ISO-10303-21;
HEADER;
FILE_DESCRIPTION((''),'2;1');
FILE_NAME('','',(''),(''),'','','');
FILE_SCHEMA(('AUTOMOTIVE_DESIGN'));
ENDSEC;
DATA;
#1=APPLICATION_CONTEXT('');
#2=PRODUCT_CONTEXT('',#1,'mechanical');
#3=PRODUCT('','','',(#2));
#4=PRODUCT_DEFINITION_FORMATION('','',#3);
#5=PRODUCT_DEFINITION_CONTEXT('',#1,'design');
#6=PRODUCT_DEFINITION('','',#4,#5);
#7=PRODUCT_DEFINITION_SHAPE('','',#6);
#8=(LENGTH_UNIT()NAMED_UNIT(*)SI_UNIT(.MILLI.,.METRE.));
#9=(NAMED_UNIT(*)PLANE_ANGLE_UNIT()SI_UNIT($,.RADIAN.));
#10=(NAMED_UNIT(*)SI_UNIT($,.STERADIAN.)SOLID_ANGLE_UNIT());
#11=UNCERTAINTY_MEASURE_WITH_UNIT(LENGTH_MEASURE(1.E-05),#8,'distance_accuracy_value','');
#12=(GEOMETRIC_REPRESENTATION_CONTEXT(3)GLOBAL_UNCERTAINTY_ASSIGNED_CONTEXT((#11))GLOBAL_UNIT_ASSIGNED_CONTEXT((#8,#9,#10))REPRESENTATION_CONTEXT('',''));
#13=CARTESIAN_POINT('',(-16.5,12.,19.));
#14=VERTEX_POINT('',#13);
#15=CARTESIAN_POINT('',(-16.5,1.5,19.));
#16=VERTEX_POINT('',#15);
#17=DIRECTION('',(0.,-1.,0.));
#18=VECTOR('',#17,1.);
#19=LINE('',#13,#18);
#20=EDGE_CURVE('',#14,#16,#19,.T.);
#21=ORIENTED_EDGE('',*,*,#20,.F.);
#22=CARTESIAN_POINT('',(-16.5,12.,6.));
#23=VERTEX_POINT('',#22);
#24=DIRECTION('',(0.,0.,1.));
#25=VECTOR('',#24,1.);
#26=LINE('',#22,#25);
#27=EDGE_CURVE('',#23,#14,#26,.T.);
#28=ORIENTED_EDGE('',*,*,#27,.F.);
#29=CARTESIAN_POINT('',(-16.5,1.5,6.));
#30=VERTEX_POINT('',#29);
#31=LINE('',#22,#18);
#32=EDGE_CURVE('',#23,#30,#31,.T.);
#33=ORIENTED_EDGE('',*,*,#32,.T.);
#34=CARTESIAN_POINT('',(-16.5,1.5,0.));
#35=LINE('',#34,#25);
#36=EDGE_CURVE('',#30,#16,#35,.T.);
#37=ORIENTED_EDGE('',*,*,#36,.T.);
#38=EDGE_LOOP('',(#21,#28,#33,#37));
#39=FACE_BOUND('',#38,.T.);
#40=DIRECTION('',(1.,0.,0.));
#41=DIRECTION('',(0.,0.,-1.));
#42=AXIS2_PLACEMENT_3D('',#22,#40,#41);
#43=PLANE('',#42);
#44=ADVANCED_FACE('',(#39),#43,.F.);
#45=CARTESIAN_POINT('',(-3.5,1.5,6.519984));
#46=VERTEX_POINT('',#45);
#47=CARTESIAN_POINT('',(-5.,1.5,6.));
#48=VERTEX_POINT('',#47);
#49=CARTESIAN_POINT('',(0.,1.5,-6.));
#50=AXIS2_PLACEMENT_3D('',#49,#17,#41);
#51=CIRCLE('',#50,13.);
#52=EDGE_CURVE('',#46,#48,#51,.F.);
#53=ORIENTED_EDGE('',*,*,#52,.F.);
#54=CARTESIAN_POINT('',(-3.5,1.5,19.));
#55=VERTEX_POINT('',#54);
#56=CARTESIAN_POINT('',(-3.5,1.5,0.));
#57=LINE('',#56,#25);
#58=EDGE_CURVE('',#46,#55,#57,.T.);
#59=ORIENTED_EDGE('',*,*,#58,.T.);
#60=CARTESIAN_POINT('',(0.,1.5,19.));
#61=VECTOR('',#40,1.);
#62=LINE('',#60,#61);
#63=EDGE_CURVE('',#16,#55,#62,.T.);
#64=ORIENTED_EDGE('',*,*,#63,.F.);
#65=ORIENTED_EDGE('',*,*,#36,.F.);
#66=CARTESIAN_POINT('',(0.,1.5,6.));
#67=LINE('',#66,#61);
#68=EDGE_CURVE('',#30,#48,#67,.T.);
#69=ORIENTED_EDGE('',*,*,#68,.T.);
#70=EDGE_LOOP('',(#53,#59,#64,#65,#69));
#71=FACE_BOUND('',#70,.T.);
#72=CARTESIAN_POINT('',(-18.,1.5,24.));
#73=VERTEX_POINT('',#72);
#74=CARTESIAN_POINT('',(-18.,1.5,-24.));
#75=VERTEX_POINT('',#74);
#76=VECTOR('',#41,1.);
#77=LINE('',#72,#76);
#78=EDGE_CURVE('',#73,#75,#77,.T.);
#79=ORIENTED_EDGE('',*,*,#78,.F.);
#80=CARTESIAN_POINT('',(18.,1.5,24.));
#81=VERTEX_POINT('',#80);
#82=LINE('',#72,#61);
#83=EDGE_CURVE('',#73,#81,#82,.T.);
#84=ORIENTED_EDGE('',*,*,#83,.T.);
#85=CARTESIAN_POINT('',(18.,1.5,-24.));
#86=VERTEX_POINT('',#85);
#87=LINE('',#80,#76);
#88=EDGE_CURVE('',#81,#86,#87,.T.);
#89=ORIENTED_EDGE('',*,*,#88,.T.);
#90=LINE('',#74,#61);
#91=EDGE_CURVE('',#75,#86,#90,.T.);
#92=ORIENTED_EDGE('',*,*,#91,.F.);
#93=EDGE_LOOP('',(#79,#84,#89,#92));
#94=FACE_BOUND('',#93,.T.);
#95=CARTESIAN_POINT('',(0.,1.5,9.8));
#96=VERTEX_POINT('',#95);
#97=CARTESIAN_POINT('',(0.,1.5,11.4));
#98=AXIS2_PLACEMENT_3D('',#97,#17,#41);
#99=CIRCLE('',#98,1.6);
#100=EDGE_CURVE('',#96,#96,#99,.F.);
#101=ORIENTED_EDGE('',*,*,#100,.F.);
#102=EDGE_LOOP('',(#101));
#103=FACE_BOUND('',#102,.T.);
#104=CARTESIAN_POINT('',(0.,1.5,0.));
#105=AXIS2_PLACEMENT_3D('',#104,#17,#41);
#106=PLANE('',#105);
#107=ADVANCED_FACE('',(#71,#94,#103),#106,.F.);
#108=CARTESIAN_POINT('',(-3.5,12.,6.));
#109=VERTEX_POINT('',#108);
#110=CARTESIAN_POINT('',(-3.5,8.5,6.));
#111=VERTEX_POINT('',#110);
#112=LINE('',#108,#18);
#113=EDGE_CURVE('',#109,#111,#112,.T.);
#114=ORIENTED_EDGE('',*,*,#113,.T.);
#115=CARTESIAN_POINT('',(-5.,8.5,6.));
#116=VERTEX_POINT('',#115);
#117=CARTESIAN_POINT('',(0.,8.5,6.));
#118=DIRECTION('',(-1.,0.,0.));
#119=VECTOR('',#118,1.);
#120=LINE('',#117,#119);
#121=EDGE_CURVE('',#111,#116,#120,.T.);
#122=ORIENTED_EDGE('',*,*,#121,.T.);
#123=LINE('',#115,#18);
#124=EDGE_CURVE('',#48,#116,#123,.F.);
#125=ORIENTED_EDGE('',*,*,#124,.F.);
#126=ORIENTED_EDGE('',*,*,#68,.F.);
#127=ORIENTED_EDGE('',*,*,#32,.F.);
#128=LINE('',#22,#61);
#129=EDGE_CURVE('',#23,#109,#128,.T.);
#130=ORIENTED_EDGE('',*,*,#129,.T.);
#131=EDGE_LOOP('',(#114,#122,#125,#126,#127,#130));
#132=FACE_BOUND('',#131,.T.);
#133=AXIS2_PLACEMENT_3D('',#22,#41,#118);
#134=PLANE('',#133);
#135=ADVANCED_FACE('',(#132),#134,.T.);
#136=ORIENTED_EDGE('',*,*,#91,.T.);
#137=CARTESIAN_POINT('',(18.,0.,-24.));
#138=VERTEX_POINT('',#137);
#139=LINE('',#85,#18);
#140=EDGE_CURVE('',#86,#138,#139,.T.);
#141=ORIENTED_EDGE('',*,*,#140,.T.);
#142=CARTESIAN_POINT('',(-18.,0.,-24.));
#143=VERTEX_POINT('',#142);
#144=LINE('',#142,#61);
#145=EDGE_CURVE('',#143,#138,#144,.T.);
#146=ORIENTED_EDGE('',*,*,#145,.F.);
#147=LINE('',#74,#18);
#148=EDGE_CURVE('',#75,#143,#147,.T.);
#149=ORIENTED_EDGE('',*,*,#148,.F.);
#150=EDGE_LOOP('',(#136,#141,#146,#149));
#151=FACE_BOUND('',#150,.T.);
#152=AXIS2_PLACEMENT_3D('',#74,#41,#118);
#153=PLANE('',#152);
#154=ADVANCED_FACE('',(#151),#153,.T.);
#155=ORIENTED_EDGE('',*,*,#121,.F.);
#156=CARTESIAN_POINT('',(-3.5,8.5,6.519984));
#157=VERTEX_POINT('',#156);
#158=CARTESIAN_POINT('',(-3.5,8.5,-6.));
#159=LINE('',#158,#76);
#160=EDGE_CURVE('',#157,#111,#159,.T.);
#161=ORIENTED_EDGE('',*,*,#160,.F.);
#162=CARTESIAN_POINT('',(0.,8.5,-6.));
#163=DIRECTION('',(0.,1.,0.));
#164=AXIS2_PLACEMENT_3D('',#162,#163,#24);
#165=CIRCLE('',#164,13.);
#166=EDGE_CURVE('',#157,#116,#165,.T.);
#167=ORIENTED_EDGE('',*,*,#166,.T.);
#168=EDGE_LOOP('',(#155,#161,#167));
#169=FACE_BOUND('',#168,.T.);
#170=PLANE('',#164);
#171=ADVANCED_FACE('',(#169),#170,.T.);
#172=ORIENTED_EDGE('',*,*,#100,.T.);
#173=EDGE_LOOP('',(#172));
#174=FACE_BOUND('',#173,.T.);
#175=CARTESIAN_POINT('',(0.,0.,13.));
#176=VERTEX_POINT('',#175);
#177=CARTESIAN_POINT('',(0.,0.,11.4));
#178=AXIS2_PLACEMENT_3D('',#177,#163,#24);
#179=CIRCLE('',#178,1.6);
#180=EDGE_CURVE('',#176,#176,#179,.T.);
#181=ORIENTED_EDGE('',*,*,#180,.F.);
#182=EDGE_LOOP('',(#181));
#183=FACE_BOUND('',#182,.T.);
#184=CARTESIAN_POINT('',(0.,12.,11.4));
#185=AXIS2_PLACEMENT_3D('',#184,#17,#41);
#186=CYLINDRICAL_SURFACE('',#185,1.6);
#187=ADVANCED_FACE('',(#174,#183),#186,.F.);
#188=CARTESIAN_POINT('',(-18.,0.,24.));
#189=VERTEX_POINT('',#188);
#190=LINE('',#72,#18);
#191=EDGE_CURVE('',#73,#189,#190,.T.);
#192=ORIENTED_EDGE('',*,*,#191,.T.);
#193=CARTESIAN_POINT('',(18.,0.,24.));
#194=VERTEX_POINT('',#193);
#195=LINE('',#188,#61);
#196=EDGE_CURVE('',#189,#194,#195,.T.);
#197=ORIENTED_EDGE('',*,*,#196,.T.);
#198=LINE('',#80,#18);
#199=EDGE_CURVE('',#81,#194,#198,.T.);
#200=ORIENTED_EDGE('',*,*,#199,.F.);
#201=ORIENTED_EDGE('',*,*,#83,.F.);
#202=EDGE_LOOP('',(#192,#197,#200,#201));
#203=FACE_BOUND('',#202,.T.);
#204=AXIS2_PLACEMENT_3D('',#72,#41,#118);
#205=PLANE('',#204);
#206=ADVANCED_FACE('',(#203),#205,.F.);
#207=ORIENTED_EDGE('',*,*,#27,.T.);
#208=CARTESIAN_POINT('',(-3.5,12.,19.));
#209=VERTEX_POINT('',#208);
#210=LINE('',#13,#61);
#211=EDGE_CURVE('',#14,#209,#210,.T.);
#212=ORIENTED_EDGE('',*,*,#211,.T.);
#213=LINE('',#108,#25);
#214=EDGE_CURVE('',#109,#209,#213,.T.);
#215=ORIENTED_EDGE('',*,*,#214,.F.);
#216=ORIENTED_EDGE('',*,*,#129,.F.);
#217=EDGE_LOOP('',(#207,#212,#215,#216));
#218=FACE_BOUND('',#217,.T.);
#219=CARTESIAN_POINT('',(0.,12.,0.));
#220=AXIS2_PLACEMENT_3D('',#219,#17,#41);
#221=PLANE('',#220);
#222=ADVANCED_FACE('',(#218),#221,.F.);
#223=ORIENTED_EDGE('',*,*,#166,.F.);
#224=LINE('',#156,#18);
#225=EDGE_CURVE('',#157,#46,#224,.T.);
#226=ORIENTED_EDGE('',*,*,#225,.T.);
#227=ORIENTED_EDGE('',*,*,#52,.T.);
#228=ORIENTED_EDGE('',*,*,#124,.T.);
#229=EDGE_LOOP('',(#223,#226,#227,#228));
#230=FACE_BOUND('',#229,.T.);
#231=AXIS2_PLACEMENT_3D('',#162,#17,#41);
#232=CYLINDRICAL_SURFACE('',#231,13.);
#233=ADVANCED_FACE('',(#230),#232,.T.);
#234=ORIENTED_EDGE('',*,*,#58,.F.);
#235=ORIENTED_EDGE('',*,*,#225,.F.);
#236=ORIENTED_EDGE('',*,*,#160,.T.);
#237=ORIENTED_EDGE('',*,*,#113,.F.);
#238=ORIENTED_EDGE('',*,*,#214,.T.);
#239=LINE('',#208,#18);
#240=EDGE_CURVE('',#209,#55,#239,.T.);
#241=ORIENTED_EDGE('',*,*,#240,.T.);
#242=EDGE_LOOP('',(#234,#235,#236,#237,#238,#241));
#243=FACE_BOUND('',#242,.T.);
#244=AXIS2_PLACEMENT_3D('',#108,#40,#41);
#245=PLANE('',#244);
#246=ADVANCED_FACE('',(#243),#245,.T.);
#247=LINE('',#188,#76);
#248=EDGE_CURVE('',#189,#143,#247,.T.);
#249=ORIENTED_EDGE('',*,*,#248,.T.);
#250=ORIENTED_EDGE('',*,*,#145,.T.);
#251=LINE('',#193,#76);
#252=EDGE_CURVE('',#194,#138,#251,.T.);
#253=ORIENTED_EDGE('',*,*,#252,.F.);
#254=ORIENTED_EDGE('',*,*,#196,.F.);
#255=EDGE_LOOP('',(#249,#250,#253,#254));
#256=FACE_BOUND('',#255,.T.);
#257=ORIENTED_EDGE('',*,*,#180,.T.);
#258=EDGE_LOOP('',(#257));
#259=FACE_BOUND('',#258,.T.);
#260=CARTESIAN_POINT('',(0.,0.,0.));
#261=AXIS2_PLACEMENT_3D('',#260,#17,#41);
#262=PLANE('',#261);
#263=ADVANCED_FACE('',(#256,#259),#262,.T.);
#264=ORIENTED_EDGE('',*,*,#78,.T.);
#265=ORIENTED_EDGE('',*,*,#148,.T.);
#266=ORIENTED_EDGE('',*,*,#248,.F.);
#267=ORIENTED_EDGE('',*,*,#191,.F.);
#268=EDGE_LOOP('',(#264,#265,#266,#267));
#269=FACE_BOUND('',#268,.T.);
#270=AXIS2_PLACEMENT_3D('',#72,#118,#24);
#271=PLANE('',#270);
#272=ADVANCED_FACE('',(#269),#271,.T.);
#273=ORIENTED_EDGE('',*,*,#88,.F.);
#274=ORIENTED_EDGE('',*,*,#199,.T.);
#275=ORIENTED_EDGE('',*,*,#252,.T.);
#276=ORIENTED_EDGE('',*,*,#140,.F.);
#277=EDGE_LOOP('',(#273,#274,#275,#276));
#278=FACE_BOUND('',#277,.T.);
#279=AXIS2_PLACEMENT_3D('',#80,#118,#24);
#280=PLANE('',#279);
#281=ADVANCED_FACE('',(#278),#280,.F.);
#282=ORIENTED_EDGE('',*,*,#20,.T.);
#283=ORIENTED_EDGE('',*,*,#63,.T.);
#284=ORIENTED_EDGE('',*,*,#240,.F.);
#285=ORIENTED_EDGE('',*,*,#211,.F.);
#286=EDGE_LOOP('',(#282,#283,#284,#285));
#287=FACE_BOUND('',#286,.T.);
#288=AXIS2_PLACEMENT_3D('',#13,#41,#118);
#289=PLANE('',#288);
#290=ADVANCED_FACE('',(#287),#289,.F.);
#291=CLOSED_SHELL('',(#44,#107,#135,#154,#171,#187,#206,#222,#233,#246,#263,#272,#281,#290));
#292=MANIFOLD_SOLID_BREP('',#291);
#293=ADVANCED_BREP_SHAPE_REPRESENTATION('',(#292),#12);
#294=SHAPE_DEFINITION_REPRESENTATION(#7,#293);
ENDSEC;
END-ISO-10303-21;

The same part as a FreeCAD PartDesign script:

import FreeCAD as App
import Part
import Sketcher
from FreeCAD import Vector
Q = App.Units.Quantity


def add_polygon(sketch, points):
    """Adds a closed chain of lines whose ends are joined by coincident constraints."""
    first, n = sketch.GeometryCount, len(points)
    for a, b in zip(points, points[1:] + points[:1]):
        sketch.addGeometry(Part.LineSegment(App.Vector(*a, 0), App.Vector(*b, 0)), False)
    for i in range(n):
        sketch.addConstraint(Sketcher.Constraint("Coincident", first + i, 2, first + (i + 1) % n, 1))

doc = App.newDocument("Part")
body = doc.addObject("PartDesign::Body", "Body")

sketch1 = doc.addObject("Sketcher::SketchObject", "Sketch")
body.addObject(sketch1)
sketch1.AttachmentSupport = (doc.XZ_Plane, [""])
sketch1.MapMode = "FlatFace"
add_polygon(sketch1, [(-18, -24), (-18, 24), (18, 24), (18, -24)])
sketch1.addConstraint([
    Sketcher.Constraint("Vertical", 0),
    Sketcher.Constraint("Horizontal", 1),
    Sketcher.Constraint("Vertical", 2),
    Sketcher.Constraint("Horizontal", 3),
    Sketcher.Constraint("Symmetric", 0, 2, 2, 2, -1, 1),
    Sketcher.Constraint("DistanceX", 1, 1, 1, 2, Q("36 mm")),
    Sketcher.Constraint("DistanceY", 0, 1, 0, 2, Q("48 mm")),
])
pad1 = doc.addObject("PartDesign::Pad", "Pad")
body.addObject(pad1)
pad1.Profile = sketch1
pad1.Length = 1.5
pad1.Reversed = True

sketch2 = doc.addObject("Sketcher::SketchObject", "Sketch001")
body.addObject(sketch2)
sketch2.AttachmentSupport = (doc.XZ_Plane, [""])
sketch2.MapMode = "FlatFace"
sketch2.addGeometry(Part.Circle(Vector(0, -6, 0), Vector(0, 0, 1), 13), False)
sketch2.addConstraint([
    Sketcher.Constraint("PointOnObject", 0, 3, -2),
    Sketcher.Constraint("Diameter", 0, Q("26 mm")),
    Sketcher.Constraint("DistanceY", 0, 3, -1, 1, Q("6 mm")),
])
pad2 = doc.addObject("PartDesign::Pad", "Pad001")
body.addObject(pad2)
pad2.Profile = sketch2
pad2.Length = 8.5
pad2.Reversed = True

sketch3 = doc.addObject("Sketcher::SketchObject", "Sketch002")
body.addObject(sketch3)
sketch3.AttachmentSupport = (doc.XZ_Plane, [""])
sketch3.MapMode = "FlatFace"
add_polygon(sketch3, [(-16, 6), (-16, 19), (-4, 19), (-4, 6)])
sketch3.addConstraint([
    Sketcher.Constraint("Vertical", 0),
    Sketcher.Constraint("Horizontal", 1),
    Sketcher.Constraint("Vertical", 2),
    Sketcher.Constraint("Horizontal", 3),
    Sketcher.Constraint("Equal", 3, 0),
    Sketcher.Constraint("DistanceX", 1, 1, 1, 2, Q("13 mm")),
    Sketcher.Constraint("DistanceY", -1, 1, 0, 2, Q("19 mm")),
    Sketcher.Constraint("DistanceX", 0, 2, -1, 1, Q("16.5 mm")),
])
pad3 = doc.addObject("PartDesign::Pad", "Pad002")
body.addObject(pad3)
pad3.Profile = sketch3
pad3.Length = 12
pad3.Reversed = True

sketch4 = doc.addObject("Sketcher::SketchObject", "Sketch003")
body.addObject(sketch4)
sketch4.AttachmentSupport = (doc.XZ_Plane, [""])
sketch4.MapMode = "FlatFace"
sketch4.addGeometry(Part.Circle(Vector(0, 11.4, 0), Vector(0, 0, 1), 1.6), False)
sketch4.addConstraint([
    Sketcher.Constraint("PointOnObject", 0, 3, -2),
    Sketcher.Constraint("Diameter", 0, Q("3.2 mm")),
    Sketcher.Constraint("DistanceY", -1, 1, 0, 3, Q("11.4 mm")),
])
pocket1 = doc.addObject("PartDesign::Pocket", "Pocket")
body.addObject(pocket1)
pocket1.Profile = sketch4
pocket1.Type = "ThroughAll"

doc.recompute()
